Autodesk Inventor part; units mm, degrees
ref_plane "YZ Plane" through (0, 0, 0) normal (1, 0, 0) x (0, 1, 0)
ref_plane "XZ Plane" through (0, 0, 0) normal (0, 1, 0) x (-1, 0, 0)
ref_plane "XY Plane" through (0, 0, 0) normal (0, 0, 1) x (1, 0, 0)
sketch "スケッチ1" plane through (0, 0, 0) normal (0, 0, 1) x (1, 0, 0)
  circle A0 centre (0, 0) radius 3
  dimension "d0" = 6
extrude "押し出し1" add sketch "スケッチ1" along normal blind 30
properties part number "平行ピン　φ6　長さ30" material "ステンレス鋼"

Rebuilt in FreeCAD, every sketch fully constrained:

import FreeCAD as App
import Part
import Sketcher

V = App.Vector
Q = App.Units.Quantity

doc = App.newDocument("Part")
body = doc.addObject("PartDesign::Body", "Body")

# Sketch on XY plane
sketch1 = body.newObject("Sketcher::SketchObject", "Sketch")
sketch1.AttachmentSupport = (doc.getObject("XY_Plane"), [""])
sketch1.MapMode = "FlatFace"
sketch1.addGeometry(Part.Circle(V(0, 0, 0), V(0, 0, 1), 3), False)
sketch1.addConstraint(Sketcher.Constraint("Coincident", 0, 3, -1, 1))
sketch1.addConstraint(Sketcher.Constraint("Diameter", 0, Q("6 mm")))
pad1 = body.newObject("PartDesign::Pad", "Pad")
pad1.Profile = sketch1
pad1.Length = 30

doc.recompute()
